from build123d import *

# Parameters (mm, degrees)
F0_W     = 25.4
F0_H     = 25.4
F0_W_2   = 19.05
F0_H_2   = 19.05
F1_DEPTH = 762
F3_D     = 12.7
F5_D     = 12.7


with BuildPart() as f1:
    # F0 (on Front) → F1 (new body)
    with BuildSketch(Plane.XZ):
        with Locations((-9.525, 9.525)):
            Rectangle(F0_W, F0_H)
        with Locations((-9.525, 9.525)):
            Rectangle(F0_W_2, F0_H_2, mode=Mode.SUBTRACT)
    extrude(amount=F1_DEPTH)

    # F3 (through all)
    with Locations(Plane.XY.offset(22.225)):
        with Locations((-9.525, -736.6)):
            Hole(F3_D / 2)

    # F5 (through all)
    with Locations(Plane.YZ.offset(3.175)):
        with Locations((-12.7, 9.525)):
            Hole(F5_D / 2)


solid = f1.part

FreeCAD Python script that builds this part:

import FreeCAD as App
import Part
import Sketcher
Q = App.Units.Quantity


def add_polygon(sketch, points):
    """Adds a closed chain of lines whose ends are joined by coincident constraints."""
    first, n = sketch.GeometryCount, len(points)
    for a, b in zip(points, points[1:] + points[:1]):
        sketch.addGeometry(Part.LineSegment(App.Vector(*a, 0), App.Vector(*b, 0)), False)
    for i in range(n):
        sketch.addConstraint(Sketcher.Constraint("Coincident", first + i, 2, first + (i + 1) % n, 1))

doc = App.newDocument("Part")
body = doc.addObject("PartDesign::Body", "Body")

# Sketch on XZ plane
sketch1 = body.newObject("Sketcher::SketchObject", "Sketch")
sketch1.AttachmentSupport = (doc.getObject("XZ_Plane"), [""])
sketch1.MapMode = "FlatFace"
add_polygon(sketch1, [(-22.225, 22.225), (-22.225, -3.175), (3.175, -3.175), (3.175, 22.225)])  # lines 0-3
add_polygon(sketch1, [(0, 0), (-19.05, 0), (-19.05, 19.05), (0, 19.05)])  # lines 4-7
sketch1.addConstraint([
    Sketcher.Constraint("Vertical", 0),
    Sketcher.Constraint("Horizontal", 1),
    Sketcher.Constraint("Vertical", 2),
    Sketcher.Constraint("Horizontal", 3),
    Sketcher.Constraint("Horizontal", 4),
    Sketcher.Constraint("Vertical", 5),
    Sketcher.Constraint("Horizontal", 6),
    Sketcher.Constraint("Vertical", 7),
    Sketcher.Constraint("Coincident", 7, 2, -1, 1),
    Sketcher.Constraint("Equal", 3, 0),
    Sketcher.Constraint("Equal", 6, 5),
    Sketcher.Constraint("DistanceX", 1, 1, 1, 2, Q("1 in")),
    Sketcher.Constraint("DistanceX", 4, 2, 4, 1, Q("0.75 in")),
    Sketcher.Constraint("DistanceX", 0, 2, -1, 1, Q("0.875 in")),
    Sketcher.Constraint("DistanceY", 0, 2, -1, 1, Q("0.125 in")),
])
pad1 = body.newObject("PartDesign::Pad", "Pad")
pad1.Profile = sketch1
pad1.Length = Q("30 in")

# Sketch on XY plane
sketch2 = body.newObject("Sketcher::SketchObject", "Sketch001")
sketch2.AttachmentSupport = (doc.getObject("XY_Plane"), [""])
sketch2.MapMode = "FlatFace"
sketch2.AttachmentOffset = App.Placement(App.Vector(0, 0, 0.875 * 25.4), App.Rotation())
sketch2.addGeometry(Part.Circle(App.Vector(-9.525, -736.6, 0), App.Vector(0, 0, 1), 6.35), False)
sketch2.addConstraint([
    Sketcher.Constraint("Diameter", 0, Q("0.5 in")),
    Sketcher.Constraint("DistanceY", 0, 3, -1, 1, Q("29 in")),
    Sketcher.Constraint("DistanceX", 0, 3, -1, 1, Q("0.375 in")),
])
doc.recompute()
hole = body.newObject("PartDesign::Hole", "Hole")
hole.Profile = sketch2
hole.ThreadType = "None"
hole.Diameter = Q("0.5 in")
hole.DepthType = "ThroughAll"

# Sketch on YZ plane
sketch3 = body.newObject("Sketcher::SketchObject", "Sketch002")
sketch3.AttachmentSupport = (doc.getObject("YZ_Plane"), [""])
sketch3.MapMode = "FlatFace"
sketch3.AttachmentOffset = App.Placement(App.Vector(0, 0, 0.125 * 25.4), App.Rotation())
sketch3.addGeometry(Part.Circle(App.Vector(-12.7, 9.525, 0), App.Vector(0, 0, 1), 6.35), False)
sketch3.addConstraint([
    Sketcher.Constraint("Diameter", 0, Q("0.5 in")),
    Sketcher.Constraint("DistanceX", 0, 3, -1, 1, Q("0.5 in")),
    Sketcher.Constraint("DistanceY", -1, 1, 0, 3, Q("0.375 in")),
])
doc.recompute()
hole2 = body.newObject("PartDesign::Hole", "Hole001")
hole2.Profile = sketch3
hole2.ThreadType = "None"
hole2.Diameter = Q("0.5 in")
hole2.DepthType = "ThroughAll"

doc.recompute()
